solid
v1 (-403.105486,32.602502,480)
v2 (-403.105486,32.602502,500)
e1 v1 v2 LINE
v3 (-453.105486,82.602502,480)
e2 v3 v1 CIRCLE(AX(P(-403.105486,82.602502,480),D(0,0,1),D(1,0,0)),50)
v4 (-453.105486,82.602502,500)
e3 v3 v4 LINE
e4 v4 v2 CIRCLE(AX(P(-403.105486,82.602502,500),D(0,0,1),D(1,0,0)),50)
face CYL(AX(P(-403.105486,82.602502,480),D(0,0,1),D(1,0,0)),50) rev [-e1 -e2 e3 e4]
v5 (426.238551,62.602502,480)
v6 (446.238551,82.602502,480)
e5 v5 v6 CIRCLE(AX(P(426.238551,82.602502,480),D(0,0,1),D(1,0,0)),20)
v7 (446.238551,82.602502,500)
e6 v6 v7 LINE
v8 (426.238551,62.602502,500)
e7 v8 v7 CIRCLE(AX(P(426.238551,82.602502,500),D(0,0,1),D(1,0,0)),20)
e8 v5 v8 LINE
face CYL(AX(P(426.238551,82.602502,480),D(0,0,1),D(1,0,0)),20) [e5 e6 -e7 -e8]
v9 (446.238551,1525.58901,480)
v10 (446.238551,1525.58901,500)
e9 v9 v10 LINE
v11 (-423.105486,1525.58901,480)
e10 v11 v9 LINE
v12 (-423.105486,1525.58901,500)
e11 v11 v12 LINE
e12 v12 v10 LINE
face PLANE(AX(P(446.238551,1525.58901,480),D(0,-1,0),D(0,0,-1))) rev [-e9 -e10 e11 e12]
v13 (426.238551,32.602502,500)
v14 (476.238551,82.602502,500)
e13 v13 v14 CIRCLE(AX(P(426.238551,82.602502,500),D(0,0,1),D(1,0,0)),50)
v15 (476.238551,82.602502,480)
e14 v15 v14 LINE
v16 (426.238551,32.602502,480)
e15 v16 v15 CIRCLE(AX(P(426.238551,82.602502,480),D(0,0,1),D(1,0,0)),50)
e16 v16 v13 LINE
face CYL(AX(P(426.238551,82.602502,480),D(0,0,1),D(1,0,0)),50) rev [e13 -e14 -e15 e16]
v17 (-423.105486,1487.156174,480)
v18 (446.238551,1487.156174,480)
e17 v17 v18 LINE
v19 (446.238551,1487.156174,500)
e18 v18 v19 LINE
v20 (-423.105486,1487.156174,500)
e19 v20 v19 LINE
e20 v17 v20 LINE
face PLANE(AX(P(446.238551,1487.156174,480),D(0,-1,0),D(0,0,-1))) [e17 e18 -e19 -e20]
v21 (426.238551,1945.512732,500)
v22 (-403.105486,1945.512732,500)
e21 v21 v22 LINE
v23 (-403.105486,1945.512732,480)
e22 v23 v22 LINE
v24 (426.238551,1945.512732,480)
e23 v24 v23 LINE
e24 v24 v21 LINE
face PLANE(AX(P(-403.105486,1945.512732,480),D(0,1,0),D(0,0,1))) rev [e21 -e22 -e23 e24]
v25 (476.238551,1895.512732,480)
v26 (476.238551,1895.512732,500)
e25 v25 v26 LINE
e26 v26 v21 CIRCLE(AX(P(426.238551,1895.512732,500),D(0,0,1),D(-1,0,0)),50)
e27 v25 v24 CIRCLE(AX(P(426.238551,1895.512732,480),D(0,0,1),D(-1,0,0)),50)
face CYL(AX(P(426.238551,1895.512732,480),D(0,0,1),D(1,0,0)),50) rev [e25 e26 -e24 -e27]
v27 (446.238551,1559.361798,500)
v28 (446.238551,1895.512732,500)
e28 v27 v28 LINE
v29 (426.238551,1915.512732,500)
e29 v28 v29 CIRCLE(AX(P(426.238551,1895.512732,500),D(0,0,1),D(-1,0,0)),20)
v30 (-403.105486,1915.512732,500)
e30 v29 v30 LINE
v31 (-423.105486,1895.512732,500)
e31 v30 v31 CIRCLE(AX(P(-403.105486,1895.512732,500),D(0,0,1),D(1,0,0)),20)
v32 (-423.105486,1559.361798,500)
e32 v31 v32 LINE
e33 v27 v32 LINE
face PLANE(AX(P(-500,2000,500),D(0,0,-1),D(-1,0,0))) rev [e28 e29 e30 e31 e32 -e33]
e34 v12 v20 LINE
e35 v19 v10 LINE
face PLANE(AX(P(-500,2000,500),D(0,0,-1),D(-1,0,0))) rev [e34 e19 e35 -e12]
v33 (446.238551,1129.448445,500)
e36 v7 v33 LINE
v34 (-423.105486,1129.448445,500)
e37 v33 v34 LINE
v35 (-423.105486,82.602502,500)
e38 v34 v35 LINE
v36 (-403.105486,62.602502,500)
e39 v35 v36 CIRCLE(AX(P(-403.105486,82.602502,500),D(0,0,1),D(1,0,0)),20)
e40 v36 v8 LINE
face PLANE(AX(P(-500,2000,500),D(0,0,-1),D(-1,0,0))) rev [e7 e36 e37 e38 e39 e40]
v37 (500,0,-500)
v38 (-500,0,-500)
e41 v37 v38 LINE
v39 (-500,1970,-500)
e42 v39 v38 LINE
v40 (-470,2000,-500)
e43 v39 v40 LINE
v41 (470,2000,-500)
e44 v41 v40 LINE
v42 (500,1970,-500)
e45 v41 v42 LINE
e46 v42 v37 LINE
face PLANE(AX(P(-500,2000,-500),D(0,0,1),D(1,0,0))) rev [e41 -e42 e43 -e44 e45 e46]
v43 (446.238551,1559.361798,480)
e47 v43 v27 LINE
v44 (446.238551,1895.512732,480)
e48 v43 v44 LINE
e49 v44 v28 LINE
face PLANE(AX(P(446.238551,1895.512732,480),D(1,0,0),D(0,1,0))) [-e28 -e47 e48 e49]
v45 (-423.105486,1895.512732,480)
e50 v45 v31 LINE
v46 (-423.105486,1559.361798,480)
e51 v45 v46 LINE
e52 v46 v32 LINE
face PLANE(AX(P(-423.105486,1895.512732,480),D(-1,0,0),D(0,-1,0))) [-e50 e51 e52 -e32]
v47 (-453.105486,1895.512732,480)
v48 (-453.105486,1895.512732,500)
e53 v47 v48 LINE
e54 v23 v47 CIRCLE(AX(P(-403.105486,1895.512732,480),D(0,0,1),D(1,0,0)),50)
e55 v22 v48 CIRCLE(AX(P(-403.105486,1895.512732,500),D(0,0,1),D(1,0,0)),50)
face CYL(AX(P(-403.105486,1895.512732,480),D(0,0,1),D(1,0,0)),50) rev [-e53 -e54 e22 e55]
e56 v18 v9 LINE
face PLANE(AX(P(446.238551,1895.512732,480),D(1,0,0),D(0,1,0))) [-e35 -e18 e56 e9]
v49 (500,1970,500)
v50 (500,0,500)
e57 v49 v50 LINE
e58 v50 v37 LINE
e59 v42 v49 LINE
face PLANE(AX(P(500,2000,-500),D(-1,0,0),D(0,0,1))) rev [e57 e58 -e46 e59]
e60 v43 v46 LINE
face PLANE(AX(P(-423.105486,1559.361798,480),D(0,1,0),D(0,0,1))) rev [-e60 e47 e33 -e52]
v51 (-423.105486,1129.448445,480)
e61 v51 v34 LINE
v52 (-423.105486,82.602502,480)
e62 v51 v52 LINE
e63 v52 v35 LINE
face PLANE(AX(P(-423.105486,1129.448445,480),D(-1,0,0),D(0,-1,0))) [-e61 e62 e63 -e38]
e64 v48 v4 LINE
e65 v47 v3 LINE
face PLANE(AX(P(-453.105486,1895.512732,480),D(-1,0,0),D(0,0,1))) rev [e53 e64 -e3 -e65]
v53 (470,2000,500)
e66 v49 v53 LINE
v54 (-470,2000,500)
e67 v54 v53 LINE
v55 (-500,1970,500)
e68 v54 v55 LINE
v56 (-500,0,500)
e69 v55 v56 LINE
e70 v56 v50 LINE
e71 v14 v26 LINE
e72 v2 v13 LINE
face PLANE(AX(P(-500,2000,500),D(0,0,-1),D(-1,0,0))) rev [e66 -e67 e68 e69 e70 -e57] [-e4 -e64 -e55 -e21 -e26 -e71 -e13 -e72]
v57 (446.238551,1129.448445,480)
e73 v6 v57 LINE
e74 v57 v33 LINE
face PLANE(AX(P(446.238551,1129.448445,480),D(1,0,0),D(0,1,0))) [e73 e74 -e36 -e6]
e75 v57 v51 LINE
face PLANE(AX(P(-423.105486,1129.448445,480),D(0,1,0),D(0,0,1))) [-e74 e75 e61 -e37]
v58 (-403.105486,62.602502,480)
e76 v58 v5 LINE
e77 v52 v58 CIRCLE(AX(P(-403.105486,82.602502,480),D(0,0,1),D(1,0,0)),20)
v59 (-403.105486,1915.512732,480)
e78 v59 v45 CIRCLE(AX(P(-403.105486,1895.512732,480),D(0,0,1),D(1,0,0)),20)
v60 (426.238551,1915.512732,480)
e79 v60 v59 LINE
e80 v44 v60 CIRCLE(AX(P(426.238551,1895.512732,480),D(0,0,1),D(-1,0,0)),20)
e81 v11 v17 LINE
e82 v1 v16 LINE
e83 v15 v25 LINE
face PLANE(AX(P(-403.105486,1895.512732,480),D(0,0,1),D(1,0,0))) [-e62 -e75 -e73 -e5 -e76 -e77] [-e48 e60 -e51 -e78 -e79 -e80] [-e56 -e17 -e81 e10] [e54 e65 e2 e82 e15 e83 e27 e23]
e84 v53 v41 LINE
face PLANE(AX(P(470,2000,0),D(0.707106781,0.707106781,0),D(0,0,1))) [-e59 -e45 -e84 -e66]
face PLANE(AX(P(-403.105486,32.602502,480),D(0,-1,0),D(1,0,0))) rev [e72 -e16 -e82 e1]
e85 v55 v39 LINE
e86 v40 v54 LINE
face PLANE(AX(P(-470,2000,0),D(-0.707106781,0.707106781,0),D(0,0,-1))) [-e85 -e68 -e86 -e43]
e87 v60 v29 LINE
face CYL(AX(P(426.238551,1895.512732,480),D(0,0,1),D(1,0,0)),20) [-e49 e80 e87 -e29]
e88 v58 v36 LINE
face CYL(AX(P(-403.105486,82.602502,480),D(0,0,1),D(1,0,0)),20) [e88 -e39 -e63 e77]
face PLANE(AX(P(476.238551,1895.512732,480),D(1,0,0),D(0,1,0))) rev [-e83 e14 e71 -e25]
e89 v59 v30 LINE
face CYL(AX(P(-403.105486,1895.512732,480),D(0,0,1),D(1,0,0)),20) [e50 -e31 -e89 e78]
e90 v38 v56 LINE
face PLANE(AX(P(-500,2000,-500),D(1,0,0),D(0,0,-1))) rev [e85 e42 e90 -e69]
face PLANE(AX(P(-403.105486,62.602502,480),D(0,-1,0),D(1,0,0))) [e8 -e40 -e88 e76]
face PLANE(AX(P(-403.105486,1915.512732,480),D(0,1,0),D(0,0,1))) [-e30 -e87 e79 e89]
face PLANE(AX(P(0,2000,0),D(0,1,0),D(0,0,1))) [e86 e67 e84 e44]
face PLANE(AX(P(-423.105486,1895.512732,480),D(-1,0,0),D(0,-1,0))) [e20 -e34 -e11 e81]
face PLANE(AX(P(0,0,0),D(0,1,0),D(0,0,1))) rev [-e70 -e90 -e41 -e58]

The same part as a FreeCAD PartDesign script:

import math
import FreeCAD as App
import Part
import Sketcher
from FreeCAD import Vector


def edges_at(feature, points):
    """Names of the edges that pass closest to the given points."""
    edges = feature.Shape.Edges
    near = lambda p: min(range(len(edges)), key=lambda i: edges[i].distToShape(Part.Vertex(*p))[0])
    return sorted({f"Edge{near(p) + 1}" for p in points})

doc = App.newDocument("Part")
body = doc.addObject("PartDesign::Body", "Body")

sketch1 = body.newObject("Sketcher::SketchObject", "Sketch")
sketch1.AttachmentSupport = (doc.getObject("XZ_Plane"), [""])
sketch1.MapMode = "FlatFace"
sketch1.addGeometry([
    Part.LineSegment(Vector(-500, -500, 0), Vector(-500, 500, 0)),
    Part.LineSegment(Vector(-500, 500, 0), Vector(500, 500, 0)),
    Part.LineSegment(Vector(500, 500, 0), Vector(500, -500, 0)),
    Part.LineSegment(Vector(500, -500, 0), Vector(-500, -500, 0)),
], False)
sketch1.addConstraint([
    Sketcher.Constraint("Coincident", 0, 2, 1, 1),
    Sketcher.Constraint("Coincident", 1, 2, 2, 1),
    Sketcher.Constraint("Coincident", 2, 2, 3, 1),
    Sketcher.Constraint("Coincident", 3, 2, 0, 1),
    Sketcher.Constraint("Vertical", 0),
    Sketcher.Constraint("Horizontal", 1),
    Sketcher.Constraint("Vertical", 2),
    Sketcher.Constraint("Horizontal", 3),
    Sketcher.Constraint("Symmetric", 0, 2, 2, 2, -1, 1),
    Sketcher.Constraint("Equal", 3, 0),
    Sketcher.Constraint("DistanceX", 1, 1, 1, 2, 1000.0),
])
pad1 = body.newObject("PartDesign::Pad", "Pad")
pad1.Profile = sketch1
pad1.Length = 2000
pad1.Reversed = True

sketch2 = body.newObject("Sketcher::SketchObject", "Sketch001")
sketch2.AttachmentSupport = (doc.getObject("XY_Plane"), [""])
sketch2.MapMode = "FlatFace"
sketch2.AttachmentOffset = App.Placement(Vector(0, 0, 500), App.Rotation())
sketch2.addGeometry([
    Part.LineSegment(Vector(-453, 1896, 0), Vector(-453, 83, 0)),
    Part.ArcOfCircle(Part.Circle(Vector(-403, 83, 0), Vector(0, 0, 1), 50), math.radians(-180), math.radians(-90)),
    Part.LineSegment(Vector(-403, 33, 0), Vector(426, 33, 0)),
    Part.ArcOfCircle(Part.Circle(Vector(426, 83, 0), Vector(0, 0, 1), 50), math.radians(-90), math.radians(0)),
    Part.LineSegment(Vector(476, 83, 0), Vector(476, 1896, 0)),
    Part.ArcOfCircle(Part.Circle(Vector(426, 1896, 0), Vector(0, 0, 1), 50), math.radians(0), math.radians(90)),
    Part.LineSegment(Vector(426, 1946, 0), Vector(-403, 1946, 0)),
    Part.ArcOfCircle(Part.Circle(Vector(-403, 1896, 0), Vector(0, 0, 1), 50), math.radians(90), math.radians(180)),
    Part.LineSegment(Vector(426, 63, 0), Vector(-403, 63, 0)),
    Part.ArcOfCircle(Part.Circle(Vector(-403, 83, 0), Vector(0, 0, 1), 20), math.radians(-180), math.radians(-90)),
    Part.LineSegment(Vector(-423, 83, 0), Vector(-423, 1129, 0)),
    Part.LineSegment(Vector(-423, 1129, 0), Vector(446, 1129, 0)),
    Part.LineSegment(Vector(446, 1129, 0), Vector(446, 83, 0)),
    Part.ArcOfCircle(Part.Circle(Vector(426, 83, 0), Vector(0, 0, 1), 20), math.radians(-90), math.radians(0)),
    Part.ArcOfCircle(Part.Circle(Vector(-403, 1896, 0), Vector(0, 0, 1), 20), math.radians(90), math.radians(180)),
    Part.LineSegment(Vector(-403, 1916, 0), Vector(426, 1916, 0)),
    Part.ArcOfCircle(Part.Circle(Vector(426, 1896, 0), Vector(0, 0, 1), 20), math.radians(0), math.radians(90)),
    Part.LineSegment(Vector(446, 1896, 0), Vector(446, 1487, 0)),
    Part.LineSegment(Vector(446, 1487, 0), Vector(-423, 1487, 0)),
    Part.LineSegment(Vector(-423, 1487, 0), Vector(-423, 1896, 0)),
], False)
sketch2.addConstraint([
    Sketcher.Constraint("Tangent", 0, 2, 1, 1),
    Sketcher.Constraint("Tangent", 1, 2, 2, 1),
    Sketcher.Constraint("Tangent", 2, 2, 3, 1),
    Sketcher.Constraint("Tangent", 3, 2, 4, 1),
    Sketcher.Constraint("Tangent", 4, 2, 5, 1),
    Sketcher.Constraint("Tangent", 5, 2, 6, 1),
    Sketcher.Constraint("Tangent", 6, 2, 7, 1),
    Sketcher.Constraint("Tangent", 7, 2, 0, 1),
    Sketcher.Constraint("Tangent", 8, 2, 9, 2),
    Sketcher.Constraint("Tangent", 9, 1, 10, 1),
    Sketcher.Constraint("Coincident", 10, 2, 11, 1),
    Sketcher.Constraint("Coincident", 11, 2, 12, 1),
    Sketcher.Constraint("Tangent", 12, 2, 13, 2),
    Sketcher.Constraint("Tangent", 13, 1, 8, 1),
    Sketcher.Constraint("Tangent", 14, 1, 15, 1),
    Sketcher.Constraint("Tangent", 15, 2, 16, 2),
    Sketcher.Constraint("Tangent", 16, 1, 17, 1),
    Sketcher.Constraint("Coincident", 17, 2, 18, 1),
    Sketcher.Constraint("Coincident", 18, 2, 19, 1),
    Sketcher.Constraint("Tangent", 19, 2, 14, 2),
    Sketcher.Constraint("Vertical", 0),
    Sketcher.Constraint("Horizontal", 2),
    Sketcher.Constraint("Vertical", 4),
    Sketcher.Constraint("Horizontal", 6),
    Sketcher.Constraint("Horizontal", 8),
    Sketcher.Constraint("Vertical", 10),
    Sketcher.Constraint("Horizontal", 11),
    Sketcher.Constraint("Vertical", 12),
    Sketcher.Constraint("Horizontal", 15),
    Sketcher.Constraint("Vertical", 17),
    Sketcher.Constraint("Horizontal", 18),
    Sketcher.Constraint("Vertical", 19),
    Sketcher.Constraint("Coincident", 9, 3, 1, 3),
    Sketcher.Constraint("Coincident", 13, 3, 3, 3),
    Sketcher.Constraint("Coincident", 14, 3, 7, 3),
    Sketcher.Constraint("Coincident", 16, 3, 5, 3),
    Sketcher.Constraint("Equal", 1, 3),
    Sketcher.Constraint("Equal", 3, 5),
    Sketcher.Constraint("Equal", 5, 7),
    Sketcher.Constraint("Equal", 13, 14),
    Sketcher.Constraint("Radius", 1, 50.0),
    Sketcher.Constraint("Radius", 9, 20.0),
    Sketcher.Constraint("DistanceY", 0, 2, 0, 1, 1812.91023),
    Sketcher.Constraint("DistanceY", 17, 2, 17, 1, 408.356558),
    Sketcher.Constraint("DistanceY", -1, 1, 1, 3, 82.602502),
    Sketcher.Constraint("DistanceX", 2, 1, 2, 2, 829.344036),
    Sketcher.Constraint("DistanceY", 10, 1, 10, 2, 1046.845944),
    Sketcher.Constraint("DistanceX", -1, 1, 3, 3, 426.238551),
])
pocket1 = body.newObject("PartDesign::Pocket", "Pocket")
pocket1.Profile = sketch2
pocket1.Length = 20

sketch3 = body.newObject("Sketcher::SketchObject", "Sketch002")
sketch3.AttachmentSupport = (doc.getObject("XY_Plane"), [""])
sketch3.MapMode = "FlatFace"
sketch3.AttachmentOffset = App.Placement(Vector(0, 0, 500), App.Rotation())
sketch3.addGeometry([
    Part.LineSegment(Vector(-423, 1559, 0), Vector(-423, 1526, 0)),
    Part.LineSegment(Vector(-423, 1526, 0), Vector(446, 1526, 0)),
    Part.LineSegment(Vector(446, 1526, 0), Vector(446, 1559, 0)),
    Part.LineSegment(Vector(446, 1559, 0), Vector(-423, 1559, 0)),
], False)
sketch3.addConstraint([
    Sketcher.Constraint("Coincident", 0, 2, 1, 1),
    Sketcher.Constraint("Coincident", 1, 2, 2, 1),
    Sketcher.Constraint("Coincident", 2, 2, 3, 1),
    Sketcher.Constraint("Coincident", 3, 2, 0, 1),
    Sketcher.Constraint("Vertical", 0),
    Sketcher.Constraint("Horizontal", 1),
    Sketcher.Constraint("Vertical", 2),
    Sketcher.Constraint("Horizontal", 3),
    Sketcher.Constraint("DistanceY", -1, 1, 2, 2, 1559.361798),
    Sketcher.Constraint("DistanceX", 1, 1, 1, 2, 869.344036),
    Sketcher.Constraint("DistanceY", 0, 2, 0, 1, 33.772788),
    Sketcher.Constraint("DistanceX", -1, 1, 1, 2, 446.238551),
])
pocket2 = body.newObject("PartDesign::Pocket", "Pocket001")
pocket2.Profile = sketch3
pocket2.Length = 20
doc.recompute()

chamfer = body.newObject("PartDesign::Chamfer", "Chamfer")
chamfer.Base = (pocket2, edges_at(pocket2, [(-500, 2000, 0), (500, 2000, 0)]))
chamfer.Size = 30

doc.recompute()
